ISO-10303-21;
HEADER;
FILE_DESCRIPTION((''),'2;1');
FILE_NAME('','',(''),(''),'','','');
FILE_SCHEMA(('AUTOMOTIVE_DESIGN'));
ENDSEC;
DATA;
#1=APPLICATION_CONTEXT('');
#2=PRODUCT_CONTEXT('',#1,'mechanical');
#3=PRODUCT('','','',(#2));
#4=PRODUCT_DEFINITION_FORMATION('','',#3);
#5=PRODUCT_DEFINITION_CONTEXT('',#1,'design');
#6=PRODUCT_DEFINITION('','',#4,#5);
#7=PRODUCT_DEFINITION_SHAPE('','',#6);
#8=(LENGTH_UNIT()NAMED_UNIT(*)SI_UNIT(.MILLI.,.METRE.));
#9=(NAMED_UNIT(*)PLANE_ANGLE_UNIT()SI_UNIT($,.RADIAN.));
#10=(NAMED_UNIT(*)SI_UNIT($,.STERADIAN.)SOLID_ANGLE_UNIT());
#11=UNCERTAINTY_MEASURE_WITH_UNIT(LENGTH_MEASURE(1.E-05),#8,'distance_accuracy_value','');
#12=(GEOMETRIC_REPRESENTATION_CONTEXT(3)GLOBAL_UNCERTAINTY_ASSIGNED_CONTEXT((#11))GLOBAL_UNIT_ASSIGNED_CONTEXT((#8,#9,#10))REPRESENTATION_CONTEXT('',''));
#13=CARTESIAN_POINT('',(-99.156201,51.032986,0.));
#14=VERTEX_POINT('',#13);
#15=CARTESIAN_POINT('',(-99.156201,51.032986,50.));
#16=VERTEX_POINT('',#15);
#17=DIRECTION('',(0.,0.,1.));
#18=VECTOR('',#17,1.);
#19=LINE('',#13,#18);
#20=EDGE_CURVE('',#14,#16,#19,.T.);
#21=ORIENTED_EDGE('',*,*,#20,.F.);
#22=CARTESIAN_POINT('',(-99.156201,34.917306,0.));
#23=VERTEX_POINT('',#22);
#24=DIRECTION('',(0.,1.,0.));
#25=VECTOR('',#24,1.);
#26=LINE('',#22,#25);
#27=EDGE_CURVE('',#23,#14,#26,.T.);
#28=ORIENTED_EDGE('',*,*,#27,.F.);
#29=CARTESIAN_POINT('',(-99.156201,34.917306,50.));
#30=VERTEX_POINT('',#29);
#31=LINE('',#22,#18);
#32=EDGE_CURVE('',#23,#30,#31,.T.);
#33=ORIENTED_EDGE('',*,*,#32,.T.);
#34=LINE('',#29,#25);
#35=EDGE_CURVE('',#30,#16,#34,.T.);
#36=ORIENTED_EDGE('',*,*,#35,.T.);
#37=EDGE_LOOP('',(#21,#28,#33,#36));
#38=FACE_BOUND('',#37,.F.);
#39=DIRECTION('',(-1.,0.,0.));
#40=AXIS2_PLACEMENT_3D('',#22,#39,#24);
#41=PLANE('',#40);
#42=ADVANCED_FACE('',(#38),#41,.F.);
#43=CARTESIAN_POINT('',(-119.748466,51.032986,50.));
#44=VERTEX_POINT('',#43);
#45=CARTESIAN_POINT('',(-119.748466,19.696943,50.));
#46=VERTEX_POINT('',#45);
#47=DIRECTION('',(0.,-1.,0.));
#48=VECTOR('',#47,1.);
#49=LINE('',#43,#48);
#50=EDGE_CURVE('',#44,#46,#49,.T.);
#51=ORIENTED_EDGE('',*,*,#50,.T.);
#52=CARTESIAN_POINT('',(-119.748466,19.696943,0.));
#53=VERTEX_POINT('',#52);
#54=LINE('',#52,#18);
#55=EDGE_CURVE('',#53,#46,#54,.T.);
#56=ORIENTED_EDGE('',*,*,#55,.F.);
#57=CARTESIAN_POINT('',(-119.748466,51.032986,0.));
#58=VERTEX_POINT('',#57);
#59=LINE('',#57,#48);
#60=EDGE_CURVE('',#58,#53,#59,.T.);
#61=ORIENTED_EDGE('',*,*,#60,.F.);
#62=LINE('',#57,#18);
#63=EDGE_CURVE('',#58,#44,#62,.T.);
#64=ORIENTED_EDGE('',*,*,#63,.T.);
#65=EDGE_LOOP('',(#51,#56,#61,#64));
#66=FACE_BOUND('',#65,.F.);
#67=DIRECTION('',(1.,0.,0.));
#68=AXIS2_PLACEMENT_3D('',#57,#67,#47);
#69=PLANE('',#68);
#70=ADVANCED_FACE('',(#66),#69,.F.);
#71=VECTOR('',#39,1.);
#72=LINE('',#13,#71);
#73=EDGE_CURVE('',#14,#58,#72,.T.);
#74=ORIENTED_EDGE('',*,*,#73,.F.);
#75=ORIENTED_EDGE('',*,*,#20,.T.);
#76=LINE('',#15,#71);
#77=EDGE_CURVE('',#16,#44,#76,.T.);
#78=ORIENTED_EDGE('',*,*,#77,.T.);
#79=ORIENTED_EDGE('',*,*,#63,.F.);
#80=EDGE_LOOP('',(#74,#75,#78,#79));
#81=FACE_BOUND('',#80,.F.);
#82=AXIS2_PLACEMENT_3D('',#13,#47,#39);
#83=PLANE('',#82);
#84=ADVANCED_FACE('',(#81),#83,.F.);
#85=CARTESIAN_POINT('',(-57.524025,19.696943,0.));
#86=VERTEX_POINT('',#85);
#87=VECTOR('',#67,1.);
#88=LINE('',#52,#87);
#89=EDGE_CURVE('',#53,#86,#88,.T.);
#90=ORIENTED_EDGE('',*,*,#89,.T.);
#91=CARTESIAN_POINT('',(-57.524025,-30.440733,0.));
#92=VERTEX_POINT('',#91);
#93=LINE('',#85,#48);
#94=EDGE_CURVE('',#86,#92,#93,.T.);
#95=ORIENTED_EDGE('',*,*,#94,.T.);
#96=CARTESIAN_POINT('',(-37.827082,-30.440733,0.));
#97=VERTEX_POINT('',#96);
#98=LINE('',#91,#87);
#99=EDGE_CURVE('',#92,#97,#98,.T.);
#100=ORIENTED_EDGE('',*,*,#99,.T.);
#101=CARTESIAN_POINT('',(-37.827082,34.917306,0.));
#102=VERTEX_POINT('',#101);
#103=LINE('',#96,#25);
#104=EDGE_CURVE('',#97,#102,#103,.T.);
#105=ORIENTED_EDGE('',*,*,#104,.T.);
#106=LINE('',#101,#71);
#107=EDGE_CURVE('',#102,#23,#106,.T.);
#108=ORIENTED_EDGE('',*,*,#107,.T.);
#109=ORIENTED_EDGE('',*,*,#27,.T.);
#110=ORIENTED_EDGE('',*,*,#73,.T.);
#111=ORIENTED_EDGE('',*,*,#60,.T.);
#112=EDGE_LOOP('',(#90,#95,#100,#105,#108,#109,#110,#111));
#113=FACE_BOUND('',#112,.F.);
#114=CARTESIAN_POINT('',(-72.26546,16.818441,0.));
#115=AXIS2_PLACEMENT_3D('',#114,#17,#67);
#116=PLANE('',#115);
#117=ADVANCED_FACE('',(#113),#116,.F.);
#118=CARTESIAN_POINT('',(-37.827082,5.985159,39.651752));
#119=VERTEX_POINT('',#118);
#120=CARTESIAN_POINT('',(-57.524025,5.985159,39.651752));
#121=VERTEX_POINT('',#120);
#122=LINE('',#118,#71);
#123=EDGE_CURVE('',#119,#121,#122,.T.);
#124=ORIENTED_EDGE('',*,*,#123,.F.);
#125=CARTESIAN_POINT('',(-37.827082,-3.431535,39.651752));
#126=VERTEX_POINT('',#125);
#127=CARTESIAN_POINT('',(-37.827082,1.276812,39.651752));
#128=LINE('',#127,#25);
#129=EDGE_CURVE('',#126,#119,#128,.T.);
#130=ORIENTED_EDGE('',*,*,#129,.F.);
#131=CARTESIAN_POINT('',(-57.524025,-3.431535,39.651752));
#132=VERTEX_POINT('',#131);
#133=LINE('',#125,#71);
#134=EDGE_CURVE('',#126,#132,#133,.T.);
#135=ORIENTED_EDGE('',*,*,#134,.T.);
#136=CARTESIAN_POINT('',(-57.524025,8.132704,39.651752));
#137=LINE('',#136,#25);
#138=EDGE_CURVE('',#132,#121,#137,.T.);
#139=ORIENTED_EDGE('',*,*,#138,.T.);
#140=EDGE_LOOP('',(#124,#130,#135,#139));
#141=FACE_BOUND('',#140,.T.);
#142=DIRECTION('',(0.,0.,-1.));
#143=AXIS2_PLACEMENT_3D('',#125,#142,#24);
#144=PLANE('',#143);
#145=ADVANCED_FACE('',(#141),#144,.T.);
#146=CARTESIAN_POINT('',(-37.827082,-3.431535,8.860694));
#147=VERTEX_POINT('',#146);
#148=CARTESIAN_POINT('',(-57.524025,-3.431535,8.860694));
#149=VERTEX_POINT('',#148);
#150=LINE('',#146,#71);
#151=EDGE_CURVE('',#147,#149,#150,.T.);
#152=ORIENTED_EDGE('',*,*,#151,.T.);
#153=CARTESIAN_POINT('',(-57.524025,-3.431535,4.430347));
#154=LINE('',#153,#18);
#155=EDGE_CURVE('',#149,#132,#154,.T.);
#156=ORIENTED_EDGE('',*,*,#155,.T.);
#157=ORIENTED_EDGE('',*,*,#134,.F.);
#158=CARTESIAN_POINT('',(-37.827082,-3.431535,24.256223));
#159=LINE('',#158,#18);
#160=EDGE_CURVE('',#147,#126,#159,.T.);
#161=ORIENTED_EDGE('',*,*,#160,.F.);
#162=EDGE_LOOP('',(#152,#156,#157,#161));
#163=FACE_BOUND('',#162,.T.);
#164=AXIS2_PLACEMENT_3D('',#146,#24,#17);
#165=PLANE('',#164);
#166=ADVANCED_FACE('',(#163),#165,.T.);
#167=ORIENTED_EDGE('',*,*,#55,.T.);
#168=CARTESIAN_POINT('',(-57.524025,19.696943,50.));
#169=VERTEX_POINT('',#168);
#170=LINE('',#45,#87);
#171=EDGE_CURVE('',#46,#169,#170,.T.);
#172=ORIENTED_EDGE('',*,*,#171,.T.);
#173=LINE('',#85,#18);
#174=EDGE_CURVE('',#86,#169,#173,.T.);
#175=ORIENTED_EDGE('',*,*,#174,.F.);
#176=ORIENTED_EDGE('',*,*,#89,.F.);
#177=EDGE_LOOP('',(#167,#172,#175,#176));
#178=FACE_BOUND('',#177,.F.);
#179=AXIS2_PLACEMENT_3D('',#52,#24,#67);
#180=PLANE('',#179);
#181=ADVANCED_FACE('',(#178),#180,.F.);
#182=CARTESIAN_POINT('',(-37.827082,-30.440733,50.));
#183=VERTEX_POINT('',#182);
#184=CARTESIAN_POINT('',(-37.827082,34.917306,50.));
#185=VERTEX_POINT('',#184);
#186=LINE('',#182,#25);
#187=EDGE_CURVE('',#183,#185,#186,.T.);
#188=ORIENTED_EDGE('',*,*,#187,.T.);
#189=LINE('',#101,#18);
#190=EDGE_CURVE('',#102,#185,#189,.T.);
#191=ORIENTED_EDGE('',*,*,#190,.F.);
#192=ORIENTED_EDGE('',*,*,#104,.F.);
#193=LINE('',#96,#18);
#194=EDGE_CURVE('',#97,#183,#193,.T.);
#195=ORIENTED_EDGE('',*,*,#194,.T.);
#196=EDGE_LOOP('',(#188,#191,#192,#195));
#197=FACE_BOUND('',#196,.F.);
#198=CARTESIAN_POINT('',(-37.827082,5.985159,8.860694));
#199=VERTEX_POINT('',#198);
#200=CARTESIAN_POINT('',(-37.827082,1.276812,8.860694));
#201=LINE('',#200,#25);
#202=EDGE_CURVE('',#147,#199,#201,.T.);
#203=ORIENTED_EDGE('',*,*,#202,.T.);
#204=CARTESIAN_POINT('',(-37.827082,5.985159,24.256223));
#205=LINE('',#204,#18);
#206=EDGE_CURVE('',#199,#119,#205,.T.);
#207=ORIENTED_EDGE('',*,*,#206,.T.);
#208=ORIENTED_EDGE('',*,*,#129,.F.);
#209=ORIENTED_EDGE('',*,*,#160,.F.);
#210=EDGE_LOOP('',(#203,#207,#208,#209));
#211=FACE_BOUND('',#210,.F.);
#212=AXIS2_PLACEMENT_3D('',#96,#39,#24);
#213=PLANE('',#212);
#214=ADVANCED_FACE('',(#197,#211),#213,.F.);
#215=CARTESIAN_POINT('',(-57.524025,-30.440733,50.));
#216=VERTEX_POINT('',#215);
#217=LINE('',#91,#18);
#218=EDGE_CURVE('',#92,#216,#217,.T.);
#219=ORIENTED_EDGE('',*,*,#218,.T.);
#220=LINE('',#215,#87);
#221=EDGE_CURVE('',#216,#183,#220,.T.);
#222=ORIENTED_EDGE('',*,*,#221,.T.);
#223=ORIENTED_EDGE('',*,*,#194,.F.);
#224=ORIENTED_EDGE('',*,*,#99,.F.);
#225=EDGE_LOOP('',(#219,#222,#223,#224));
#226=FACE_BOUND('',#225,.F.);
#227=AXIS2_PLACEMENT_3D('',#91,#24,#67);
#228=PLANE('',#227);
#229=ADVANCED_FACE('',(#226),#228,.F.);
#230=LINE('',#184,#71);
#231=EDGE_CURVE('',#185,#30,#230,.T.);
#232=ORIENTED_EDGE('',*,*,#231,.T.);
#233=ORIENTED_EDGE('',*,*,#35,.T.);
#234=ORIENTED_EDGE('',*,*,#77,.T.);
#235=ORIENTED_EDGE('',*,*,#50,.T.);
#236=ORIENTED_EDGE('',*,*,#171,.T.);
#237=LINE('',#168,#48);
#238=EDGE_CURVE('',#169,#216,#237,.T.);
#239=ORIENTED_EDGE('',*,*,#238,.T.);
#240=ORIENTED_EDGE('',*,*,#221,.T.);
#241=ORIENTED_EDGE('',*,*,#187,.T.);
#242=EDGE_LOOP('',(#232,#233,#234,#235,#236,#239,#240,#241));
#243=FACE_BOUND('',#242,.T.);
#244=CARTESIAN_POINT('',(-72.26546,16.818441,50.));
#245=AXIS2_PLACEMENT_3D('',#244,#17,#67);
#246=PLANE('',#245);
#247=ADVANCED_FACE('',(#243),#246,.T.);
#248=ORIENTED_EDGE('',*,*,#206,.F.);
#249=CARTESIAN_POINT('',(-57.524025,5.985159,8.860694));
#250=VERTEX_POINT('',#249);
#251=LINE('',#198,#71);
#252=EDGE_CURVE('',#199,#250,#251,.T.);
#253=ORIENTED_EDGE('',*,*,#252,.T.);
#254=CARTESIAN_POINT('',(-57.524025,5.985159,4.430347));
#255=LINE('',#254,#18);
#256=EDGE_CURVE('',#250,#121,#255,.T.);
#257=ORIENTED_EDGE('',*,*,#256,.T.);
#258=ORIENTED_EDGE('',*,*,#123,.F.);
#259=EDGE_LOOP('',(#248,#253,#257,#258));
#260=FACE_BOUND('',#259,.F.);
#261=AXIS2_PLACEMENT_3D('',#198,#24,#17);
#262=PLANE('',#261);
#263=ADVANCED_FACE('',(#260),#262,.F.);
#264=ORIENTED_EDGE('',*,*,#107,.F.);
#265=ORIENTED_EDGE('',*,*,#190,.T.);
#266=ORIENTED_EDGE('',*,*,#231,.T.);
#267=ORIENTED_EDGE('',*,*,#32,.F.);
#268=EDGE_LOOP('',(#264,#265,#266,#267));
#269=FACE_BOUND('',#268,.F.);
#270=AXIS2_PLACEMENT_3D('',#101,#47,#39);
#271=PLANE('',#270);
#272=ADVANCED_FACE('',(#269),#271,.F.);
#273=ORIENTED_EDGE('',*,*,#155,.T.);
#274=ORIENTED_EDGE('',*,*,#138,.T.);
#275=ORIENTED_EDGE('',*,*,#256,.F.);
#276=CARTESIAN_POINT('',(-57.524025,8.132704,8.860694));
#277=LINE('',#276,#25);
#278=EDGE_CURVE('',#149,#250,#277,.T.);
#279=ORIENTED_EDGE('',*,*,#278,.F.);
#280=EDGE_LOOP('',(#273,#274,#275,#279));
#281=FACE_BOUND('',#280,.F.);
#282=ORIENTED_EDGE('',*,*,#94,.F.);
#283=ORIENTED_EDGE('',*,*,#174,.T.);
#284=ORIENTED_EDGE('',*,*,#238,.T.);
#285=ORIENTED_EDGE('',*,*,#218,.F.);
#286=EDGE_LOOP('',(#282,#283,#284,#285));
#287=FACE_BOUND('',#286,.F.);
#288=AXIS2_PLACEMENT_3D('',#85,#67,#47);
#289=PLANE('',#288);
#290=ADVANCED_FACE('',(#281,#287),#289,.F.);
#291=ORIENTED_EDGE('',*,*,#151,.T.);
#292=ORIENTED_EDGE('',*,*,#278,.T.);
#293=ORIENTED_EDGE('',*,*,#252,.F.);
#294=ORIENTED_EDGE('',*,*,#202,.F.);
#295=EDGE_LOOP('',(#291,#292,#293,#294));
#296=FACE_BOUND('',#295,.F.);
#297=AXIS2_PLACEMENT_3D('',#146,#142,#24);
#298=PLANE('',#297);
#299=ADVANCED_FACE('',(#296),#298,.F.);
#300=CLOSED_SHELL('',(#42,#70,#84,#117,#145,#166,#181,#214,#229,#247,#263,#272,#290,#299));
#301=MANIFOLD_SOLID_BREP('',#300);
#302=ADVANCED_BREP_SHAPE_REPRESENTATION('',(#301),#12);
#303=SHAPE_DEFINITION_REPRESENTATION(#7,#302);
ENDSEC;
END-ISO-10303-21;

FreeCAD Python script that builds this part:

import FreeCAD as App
import Part
import Sketcher

V = App.Vector
Q = App.Units.Quantity

doc = App.newDocument("Part")
body = doc.addObject("PartDesign::Body", "Body")

sketch1 = body.newObject("Sketcher::SketchObject", "Sketch")
sketch1.AttachmentSupport = (doc.getObject("XY_Plane"), [""])
sketch1.MapMode = "FlatFace"
sketch1.addGeometry([
    Part.LineSegment(V(-99, 51, 0), V(-120, 51, 0)),
    Part.LineSegment(V(-120, 51, 0), V(-120, 20, 0)),
    Part.LineSegment(V(-120, 20, 0), V(-58, 20, 0)),
    Part.LineSegment(V(-58, 20, 0), V(-58, -30, 0)),
    Part.LineSegment(V(-58, -30, 0), V(-38, -30, 0)),
    Part.LineSegment(V(-38, -30, 0), V(-38, 35, 0)),
    Part.LineSegment(V(-38, 35, 0), V(-99, 35, 0)),
    Part.LineSegment(V(-99, 35, 0), V(-99, 51, 0)),
], False)
sketch1.addConstraint([
    Sketcher.Constraint("Coincident", 0, 2, 1, 1),
    Sketcher.Constraint("Coincident", 1, 2, 2, 1),
    Sketcher.Constraint("Coincident", 2, 2, 3, 1),
    Sketcher.Constraint("Coincident", 3, 2, 4, 1),
    Sketcher.Constraint("Coincident", 4, 2, 5, 1),
    Sketcher.Constraint("Coincident", 5, 2, 6, 1),
    Sketcher.Constraint("Coincident", 6, 2, 7, 1),
    Sketcher.Constraint("Coincident", 7, 2, 0, 1),
    Sketcher.Constraint("Horizontal", 0),
    Sketcher.Constraint("Vertical", 1),
    Sketcher.Constraint("Horizontal", 2),
    Sketcher.Constraint("Vertical", 3),
    Sketcher.Constraint("Horizontal", 4),
    Sketcher.Constraint("Vertical", 5),
    Sketcher.Constraint("Horizontal", 6),
    Sketcher.Constraint("Vertical", 7),
    Sketcher.Constraint("DistanceX", 2, 1, 2, 2, Q("62.224441 mm")),
    Sketcher.Constraint("DistanceX", 6, 2, 6, 1, Q("61.329119 mm")),
    Sketcher.Constraint("DistanceY", 5, 1, 5, 2, Q("65.358039 mm")),
    Sketcher.Constraint("DistanceY", 7, 1, 7, 2, Q("16.11568 mm")),
    Sketcher.Constraint("DistanceX", 6, 2, -1, 1, Q("99.156201 mm")),
    Sketcher.Constraint("DistanceX", 0, 2, 0, 1, Q("20.592265 mm")),
    Sketcher.Constraint("DistanceY", 1, 2, 1, 1, Q("31.336043 mm")),
    Sketcher.Constraint("DistanceY", -1, 1, 0, 2, Q("51.032986 mm")),
])
pad1 = body.newObject("PartDesign::Pad", "Pad")
pad1.Profile = sketch1
pad1.Length = 50

sketch2 = body.newObject("Sketcher::SketchObject", "Sketch001")
sketch2.AttachmentSupport = (doc.getObject("YZ_Plane"), [""])
sketch2.MapMode = "FlatFace"
sketch2.AttachmentOffset = App.Placement(V(0, 0, -37.827082), App.Rotation())
sketch2.addGeometry([
    Part.LineSegment(V(-3, 40, 0), V(-3, 9, 0)),
    Part.LineSegment(V(-3, 9, 0), V(6, 9, 0)),
    Part.LineSegment(V(6, 9, 0), V(6, 40, 0)),
    Part.LineSegment(V(6, 40, 0), V(-3, 40, 0)),
], False)
sketch2.addConstraint([
    Sketcher.Constraint("Coincident", 0, 2, 1, 1),
    Sketcher.Constraint("Coincident", 1, 2, 2, 1),
    Sketcher.Constraint("Coincident", 2, 2, 3, 1),
    Sketcher.Constraint("Coincident", 3, 2, 0, 1),
    Sketcher.Constraint("Vertical", 0),
    Sketcher.Constraint("Horizontal", 1),
    Sketcher.Constraint("Vertical", 2),
    Sketcher.Constraint("Horizontal", 3),
    Sketcher.Constraint("DistanceX", 1, 1, 1, 2, Q("9.416695 mm")),
    Sketcher.Constraint("DistanceY", 0, 2, 0, 1, Q("30.791057 mm")),
    Sketcher.Constraint("DistanceX", -1, 1, 1, 2, Q("5.985159 mm")),
    Sketcher.Constraint("DistanceY", -1, 1, 2, 2, Q("39.651752 mm")),
])
pocket1 = body.newObject("PartDesign::Pocket", "Pocket")
pocket1.Profile = sketch2
pocket1.Length = 25

doc.recompute()
